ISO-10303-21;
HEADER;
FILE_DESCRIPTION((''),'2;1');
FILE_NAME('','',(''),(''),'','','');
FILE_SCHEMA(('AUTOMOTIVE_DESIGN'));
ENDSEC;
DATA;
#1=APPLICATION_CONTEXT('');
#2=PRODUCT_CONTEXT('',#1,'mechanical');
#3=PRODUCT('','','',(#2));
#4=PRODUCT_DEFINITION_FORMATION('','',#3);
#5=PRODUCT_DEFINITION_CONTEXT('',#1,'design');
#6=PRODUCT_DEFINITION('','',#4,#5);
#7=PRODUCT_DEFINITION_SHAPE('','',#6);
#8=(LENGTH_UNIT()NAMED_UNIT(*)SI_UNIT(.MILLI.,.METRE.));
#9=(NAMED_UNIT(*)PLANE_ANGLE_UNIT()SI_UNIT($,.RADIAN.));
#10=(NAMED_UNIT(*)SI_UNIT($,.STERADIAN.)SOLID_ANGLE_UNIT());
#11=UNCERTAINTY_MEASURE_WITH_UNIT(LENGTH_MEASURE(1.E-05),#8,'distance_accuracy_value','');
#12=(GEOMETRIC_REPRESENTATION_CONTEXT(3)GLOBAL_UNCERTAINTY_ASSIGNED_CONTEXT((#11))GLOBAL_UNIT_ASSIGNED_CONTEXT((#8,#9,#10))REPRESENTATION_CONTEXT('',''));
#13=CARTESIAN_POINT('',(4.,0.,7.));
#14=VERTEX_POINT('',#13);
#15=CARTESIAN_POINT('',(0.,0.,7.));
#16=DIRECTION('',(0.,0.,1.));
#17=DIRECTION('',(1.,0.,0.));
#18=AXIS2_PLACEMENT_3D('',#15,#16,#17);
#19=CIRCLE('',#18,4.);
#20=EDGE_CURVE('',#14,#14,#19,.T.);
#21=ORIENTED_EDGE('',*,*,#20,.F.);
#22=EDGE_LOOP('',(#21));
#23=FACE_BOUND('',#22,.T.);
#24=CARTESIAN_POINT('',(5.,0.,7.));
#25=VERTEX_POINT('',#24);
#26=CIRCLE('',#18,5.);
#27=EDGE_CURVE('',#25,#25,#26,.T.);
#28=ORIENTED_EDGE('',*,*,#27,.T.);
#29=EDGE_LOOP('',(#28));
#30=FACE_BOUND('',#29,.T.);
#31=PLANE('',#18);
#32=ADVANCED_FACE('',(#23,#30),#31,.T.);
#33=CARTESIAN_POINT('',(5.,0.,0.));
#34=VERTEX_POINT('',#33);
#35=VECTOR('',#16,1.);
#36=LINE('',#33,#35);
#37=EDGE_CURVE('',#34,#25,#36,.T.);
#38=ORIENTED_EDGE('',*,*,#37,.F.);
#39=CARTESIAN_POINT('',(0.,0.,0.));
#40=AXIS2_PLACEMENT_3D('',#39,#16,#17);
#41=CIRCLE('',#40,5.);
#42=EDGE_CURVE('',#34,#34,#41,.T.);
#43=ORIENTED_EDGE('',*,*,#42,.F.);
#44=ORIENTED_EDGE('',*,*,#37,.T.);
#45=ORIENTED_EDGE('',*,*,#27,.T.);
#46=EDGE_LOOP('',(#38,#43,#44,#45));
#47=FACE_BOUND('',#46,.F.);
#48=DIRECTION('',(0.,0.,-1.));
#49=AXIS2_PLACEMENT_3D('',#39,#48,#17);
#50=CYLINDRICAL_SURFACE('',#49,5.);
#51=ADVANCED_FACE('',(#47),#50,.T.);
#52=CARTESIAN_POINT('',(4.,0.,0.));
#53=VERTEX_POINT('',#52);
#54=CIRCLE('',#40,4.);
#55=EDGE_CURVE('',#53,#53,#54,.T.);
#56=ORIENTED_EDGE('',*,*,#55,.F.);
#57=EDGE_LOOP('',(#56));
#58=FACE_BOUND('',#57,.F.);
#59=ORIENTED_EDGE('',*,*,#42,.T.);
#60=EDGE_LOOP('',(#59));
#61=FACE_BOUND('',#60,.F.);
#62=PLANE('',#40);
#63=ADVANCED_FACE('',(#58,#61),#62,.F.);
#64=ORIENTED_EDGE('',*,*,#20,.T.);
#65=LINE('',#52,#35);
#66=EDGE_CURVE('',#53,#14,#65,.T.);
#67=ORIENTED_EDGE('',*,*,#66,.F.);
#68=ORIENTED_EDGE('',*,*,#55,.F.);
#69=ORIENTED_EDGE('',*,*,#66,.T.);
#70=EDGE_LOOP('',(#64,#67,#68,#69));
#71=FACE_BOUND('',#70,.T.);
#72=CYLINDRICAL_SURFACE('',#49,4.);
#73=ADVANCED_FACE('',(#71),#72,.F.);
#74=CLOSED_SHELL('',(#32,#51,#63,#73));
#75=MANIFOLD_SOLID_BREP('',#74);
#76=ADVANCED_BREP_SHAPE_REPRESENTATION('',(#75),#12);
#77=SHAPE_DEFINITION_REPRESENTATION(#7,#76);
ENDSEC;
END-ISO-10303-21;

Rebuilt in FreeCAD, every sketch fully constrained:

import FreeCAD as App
import Part
import Sketcher
from FreeCAD import Vector
Q = App.Units.Quantity

doc = App.newDocument("Part")
params = doc.addObject("Spreadsheet::Sheet", "Params")
for row, (alias, value) in enumerate([
    ("sketch1_diameter", "10 mm"),
    ("sketch1_diameter2", "8 mm"),
    ("pad1_length", "7 mm"),
], start=1):
    params.set(f"A{row}", alias)
    params.set(f"B{row}", "=" + value)
    params.setAlias(f"B{row}", alias)

body = doc.addObject("PartDesign::Body", "Body")

sketch1 = body.newObject("Sketcher::SketchObject", "Sketch")
sketch1.AttachmentSupport = (doc.getObject("XY_Plane"), [""])
sketch1.MapMode = "FlatFace"
sketch1.addGeometry([
    Part.Circle(Vector(0, 0, 0), Vector(0, 0, 1), 5),
    Part.Circle(Vector(0, 0, 0), Vector(0, 0, 1), 4),
], False)
sketch1.addConstraint([
    Sketcher.Constraint("Coincident", 0, 3, -1, 1),
    Sketcher.Constraint("Coincident", 1, 3, -1, 1),
    Sketcher.Constraint("Diameter", 0, Q("10 mm")),
    Sketcher.Constraint("Diameter", 1, Q("8 mm")),
])
sketch1.setExpression("Constraints[2]", "Params.sketch1_diameter")
sketch1.setExpression("Constraints[3]", "Params.sketch1_diameter2")
pad1 = body.newObject("PartDesign::Pad", "Pad")
pad1.Profile = sketch1
pad1.setExpression("Length", "Params.pad1_length")

doc.recompute()
